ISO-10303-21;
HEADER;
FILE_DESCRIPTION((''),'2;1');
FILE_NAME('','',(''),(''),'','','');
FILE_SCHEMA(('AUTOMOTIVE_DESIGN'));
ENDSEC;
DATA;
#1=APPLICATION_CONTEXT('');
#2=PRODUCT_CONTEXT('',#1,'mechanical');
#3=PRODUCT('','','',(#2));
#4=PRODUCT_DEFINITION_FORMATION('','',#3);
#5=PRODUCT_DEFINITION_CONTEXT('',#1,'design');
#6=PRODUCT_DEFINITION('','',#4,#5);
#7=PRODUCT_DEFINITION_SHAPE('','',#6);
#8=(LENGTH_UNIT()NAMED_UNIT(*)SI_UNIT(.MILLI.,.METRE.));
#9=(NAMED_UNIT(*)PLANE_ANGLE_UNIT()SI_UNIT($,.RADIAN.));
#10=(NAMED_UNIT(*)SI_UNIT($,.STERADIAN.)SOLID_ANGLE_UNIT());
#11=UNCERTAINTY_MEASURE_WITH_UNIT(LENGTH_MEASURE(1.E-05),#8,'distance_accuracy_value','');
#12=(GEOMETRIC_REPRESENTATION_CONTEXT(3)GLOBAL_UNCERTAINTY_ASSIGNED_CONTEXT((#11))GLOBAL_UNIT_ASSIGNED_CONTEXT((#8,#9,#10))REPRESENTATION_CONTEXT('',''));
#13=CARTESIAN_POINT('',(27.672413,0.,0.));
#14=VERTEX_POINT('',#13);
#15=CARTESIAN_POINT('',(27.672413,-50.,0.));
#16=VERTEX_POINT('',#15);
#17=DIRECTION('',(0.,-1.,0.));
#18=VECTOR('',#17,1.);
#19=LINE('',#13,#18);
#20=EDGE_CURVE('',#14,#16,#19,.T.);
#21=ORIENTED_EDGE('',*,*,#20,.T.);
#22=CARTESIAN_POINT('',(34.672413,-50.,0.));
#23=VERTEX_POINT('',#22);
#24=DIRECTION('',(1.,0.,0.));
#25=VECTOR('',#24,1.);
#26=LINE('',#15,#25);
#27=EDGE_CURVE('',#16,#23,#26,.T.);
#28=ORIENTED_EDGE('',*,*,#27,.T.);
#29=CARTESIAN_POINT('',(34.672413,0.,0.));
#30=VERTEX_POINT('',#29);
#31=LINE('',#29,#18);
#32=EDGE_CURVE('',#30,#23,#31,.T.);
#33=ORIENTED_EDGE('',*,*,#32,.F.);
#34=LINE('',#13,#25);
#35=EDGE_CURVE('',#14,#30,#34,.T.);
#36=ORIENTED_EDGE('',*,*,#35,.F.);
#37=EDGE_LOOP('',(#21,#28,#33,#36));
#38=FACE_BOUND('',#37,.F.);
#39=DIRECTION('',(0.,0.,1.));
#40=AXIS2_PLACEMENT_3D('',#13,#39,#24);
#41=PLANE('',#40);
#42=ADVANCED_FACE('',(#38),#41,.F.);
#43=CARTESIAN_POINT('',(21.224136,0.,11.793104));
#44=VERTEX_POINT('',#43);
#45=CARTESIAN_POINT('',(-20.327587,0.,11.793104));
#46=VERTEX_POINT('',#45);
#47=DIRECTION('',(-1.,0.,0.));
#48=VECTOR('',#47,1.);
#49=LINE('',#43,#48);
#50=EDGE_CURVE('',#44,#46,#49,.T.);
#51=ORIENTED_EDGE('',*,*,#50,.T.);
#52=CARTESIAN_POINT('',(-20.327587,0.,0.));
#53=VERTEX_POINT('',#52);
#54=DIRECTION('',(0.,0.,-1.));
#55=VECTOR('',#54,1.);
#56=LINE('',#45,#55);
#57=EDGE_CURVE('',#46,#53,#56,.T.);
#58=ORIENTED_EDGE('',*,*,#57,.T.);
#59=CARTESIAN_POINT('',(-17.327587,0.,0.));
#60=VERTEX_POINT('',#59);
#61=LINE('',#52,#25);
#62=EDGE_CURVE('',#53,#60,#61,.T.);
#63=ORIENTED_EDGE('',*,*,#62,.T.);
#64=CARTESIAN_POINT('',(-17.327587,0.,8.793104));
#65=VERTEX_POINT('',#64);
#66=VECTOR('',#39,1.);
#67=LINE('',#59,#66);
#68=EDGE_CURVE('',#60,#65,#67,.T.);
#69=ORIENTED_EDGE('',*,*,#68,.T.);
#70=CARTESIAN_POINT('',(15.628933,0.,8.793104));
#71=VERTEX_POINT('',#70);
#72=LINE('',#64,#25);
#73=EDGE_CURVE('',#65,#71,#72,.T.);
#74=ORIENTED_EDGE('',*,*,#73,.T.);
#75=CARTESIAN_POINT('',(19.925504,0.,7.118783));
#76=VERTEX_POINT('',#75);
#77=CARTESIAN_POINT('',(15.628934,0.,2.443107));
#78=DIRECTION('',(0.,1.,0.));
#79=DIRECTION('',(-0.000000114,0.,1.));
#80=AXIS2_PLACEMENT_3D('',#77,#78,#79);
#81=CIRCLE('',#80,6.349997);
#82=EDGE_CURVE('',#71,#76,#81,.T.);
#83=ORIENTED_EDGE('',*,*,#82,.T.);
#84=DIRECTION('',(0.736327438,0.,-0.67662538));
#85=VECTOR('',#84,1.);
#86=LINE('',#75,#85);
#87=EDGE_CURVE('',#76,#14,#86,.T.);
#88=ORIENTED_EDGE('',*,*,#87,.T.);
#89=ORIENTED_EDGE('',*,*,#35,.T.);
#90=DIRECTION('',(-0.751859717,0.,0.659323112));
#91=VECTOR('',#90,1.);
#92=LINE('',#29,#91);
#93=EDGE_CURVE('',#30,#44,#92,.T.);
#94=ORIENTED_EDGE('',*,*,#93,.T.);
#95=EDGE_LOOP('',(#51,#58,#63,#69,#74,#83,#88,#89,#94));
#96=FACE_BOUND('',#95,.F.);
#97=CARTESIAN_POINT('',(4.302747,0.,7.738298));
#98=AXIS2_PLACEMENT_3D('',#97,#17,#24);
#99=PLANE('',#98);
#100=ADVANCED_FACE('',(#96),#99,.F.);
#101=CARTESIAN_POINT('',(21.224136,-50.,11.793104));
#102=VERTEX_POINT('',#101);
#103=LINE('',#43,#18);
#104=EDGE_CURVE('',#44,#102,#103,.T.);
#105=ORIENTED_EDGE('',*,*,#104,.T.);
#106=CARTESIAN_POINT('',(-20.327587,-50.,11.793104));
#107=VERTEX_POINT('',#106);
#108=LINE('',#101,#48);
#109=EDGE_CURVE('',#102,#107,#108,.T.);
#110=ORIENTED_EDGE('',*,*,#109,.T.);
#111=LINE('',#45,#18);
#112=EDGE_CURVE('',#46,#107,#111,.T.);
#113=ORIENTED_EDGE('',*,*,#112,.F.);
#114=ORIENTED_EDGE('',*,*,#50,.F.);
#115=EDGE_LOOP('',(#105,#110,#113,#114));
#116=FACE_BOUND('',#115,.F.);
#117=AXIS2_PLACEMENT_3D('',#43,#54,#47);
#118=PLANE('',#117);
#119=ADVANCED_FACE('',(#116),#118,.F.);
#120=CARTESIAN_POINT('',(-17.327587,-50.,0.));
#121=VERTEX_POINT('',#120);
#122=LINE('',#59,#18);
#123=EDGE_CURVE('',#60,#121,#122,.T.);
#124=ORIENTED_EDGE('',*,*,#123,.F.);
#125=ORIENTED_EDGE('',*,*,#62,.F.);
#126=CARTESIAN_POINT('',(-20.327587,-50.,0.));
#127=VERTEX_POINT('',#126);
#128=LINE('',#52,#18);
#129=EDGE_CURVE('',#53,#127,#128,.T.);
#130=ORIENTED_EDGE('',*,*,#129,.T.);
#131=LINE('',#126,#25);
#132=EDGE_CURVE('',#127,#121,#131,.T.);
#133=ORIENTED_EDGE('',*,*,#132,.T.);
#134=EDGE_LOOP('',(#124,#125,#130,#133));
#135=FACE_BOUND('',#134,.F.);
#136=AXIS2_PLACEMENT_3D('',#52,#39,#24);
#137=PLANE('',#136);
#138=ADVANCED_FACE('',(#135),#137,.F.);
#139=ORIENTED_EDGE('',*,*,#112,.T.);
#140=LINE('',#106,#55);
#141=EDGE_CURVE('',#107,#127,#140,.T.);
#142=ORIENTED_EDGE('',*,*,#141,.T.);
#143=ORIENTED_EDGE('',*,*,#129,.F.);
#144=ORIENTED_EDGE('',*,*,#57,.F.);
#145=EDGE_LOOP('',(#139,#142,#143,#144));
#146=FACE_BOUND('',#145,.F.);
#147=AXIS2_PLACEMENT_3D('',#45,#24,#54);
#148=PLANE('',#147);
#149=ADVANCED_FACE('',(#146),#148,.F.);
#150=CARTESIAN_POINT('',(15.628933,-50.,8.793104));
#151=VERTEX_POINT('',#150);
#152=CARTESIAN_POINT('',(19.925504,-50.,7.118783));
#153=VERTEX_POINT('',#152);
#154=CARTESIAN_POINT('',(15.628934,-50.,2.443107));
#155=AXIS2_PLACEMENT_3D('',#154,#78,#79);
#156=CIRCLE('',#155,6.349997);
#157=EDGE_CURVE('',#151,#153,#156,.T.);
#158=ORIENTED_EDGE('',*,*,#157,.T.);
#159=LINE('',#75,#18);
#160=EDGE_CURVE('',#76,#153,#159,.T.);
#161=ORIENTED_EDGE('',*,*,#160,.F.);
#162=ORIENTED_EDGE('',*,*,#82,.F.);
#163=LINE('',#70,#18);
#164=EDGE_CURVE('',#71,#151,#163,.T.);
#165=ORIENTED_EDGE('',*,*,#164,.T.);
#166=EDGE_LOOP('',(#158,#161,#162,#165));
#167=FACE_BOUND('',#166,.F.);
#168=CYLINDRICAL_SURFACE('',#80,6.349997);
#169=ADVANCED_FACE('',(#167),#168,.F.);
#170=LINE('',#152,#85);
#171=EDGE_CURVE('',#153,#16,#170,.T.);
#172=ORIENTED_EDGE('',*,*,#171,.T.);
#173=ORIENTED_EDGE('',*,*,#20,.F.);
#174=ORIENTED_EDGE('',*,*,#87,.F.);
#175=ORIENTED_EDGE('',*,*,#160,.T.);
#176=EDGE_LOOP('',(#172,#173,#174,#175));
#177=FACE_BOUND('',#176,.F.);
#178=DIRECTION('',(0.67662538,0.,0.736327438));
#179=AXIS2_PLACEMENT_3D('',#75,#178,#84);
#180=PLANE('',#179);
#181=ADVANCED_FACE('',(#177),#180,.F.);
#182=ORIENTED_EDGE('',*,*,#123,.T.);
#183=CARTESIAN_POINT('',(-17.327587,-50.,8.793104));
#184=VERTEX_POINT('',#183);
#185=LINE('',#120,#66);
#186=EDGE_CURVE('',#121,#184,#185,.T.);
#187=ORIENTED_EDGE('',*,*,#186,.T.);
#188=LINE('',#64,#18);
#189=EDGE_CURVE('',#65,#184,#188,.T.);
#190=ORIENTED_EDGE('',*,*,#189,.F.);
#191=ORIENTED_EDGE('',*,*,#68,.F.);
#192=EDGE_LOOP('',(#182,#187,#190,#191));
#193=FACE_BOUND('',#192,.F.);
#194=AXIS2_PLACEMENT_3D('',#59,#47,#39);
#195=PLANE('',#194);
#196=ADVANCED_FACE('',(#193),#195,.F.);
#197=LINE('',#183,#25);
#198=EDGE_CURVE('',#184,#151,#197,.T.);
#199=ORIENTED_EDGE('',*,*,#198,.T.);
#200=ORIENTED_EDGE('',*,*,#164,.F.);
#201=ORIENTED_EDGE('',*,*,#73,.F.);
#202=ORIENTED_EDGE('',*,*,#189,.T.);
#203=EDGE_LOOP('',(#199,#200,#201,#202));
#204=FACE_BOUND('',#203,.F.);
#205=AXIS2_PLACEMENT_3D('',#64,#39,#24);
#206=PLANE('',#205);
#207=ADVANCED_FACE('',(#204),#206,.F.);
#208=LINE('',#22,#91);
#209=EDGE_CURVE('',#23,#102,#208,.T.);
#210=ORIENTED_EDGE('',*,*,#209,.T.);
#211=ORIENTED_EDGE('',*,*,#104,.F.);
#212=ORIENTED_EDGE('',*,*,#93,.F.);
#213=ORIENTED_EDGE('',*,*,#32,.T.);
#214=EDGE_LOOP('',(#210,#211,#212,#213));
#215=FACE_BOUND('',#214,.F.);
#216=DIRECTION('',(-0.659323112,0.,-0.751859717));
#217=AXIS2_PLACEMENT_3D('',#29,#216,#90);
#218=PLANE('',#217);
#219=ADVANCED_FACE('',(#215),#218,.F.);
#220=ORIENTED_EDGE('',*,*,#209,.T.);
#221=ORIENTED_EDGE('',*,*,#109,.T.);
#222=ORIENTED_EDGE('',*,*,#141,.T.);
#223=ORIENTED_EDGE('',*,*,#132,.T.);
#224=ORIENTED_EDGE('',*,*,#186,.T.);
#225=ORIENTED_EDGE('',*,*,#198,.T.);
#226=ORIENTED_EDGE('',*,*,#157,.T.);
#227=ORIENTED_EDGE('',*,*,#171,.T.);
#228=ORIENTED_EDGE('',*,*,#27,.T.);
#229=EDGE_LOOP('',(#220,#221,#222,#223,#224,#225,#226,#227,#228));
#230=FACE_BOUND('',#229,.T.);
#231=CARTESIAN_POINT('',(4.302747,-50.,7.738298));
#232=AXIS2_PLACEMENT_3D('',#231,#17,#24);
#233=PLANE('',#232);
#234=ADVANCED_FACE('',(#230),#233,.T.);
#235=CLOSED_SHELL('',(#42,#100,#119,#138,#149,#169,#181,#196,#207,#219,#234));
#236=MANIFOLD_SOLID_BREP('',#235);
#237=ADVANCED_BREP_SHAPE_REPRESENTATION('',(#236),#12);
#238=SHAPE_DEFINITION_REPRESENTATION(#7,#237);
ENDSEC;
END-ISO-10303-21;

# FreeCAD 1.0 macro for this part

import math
import FreeCAD as App
import Part
import Sketcher

V = App.Vector
Q = App.Units.Quantity

doc = App.newDocument("Part")
body = doc.addObject("PartDesign::Body", "Body")

# Sketch on XZ plane
sketch1 = doc.addObject("Sketcher::SketchObject", "Sketch")
body.addObject(sketch1)
sketch1.AttachmentSupport = (doc.XZ_Plane, [""])
sketch1.MapMode = "FlatFace"
sketch1.addGeometry(Part.LineSegment(V(-20.3, 11.8, 0), V(-20.3, 0, 0)), False)
sketch1.addGeometry(Part.LineSegment(V(-20.3, 0, 0), V(-17.3, 0, 0)), False)
sketch1.addGeometry(Part.LineSegment(V(-17.3, 0, 0), V(-17.3, 8.8, 0)), False)
sketch1.addGeometry(Part.LineSegment(V(-17.3, 8.8, 0), V(15.6, 8.8, 0)), False)
sketch1.addGeometry(Part.ArcOfCircle(Part.Circle(V(15.6, 2.4, 0), V(0, 0, 1), 6.3), math.radians(47), math.radians(90)), False)
sketch1.addGeometry(Part.LineSegment(V(19.9, 7.1, 0), V(27.7, 0, 0)), False)
sketch1.addGeometry(Part.LineSegment(V(27.7, 0, 0), V(34.7, 0, 0)), False)
sketch1.addGeometry(Part.LineSegment(V(34.7, 0, 0), V(21.2, 11.8, 0)), False)
sketch1.addGeometry(Part.LineSegment(V(21.2, 11.8, 0), V(-20.3, 11.8, 0)), False)
sketch1.addConstraint(Sketcher.Constraint("Coincident", 0, 2, 1, 1))
sketch1.addConstraint(Sketcher.Constraint("Coincident", 1, 2, 2, 1))
sketch1.addConstraint(Sketcher.Constraint("Coincident", 2, 2, 3, 1))
sketch1.addConstraint(Sketcher.Constraint("Tangent", 3, 2, 4, 2))
sketch1.addConstraint(Sketcher.Constraint("Tangent", 4, 1, 5, 1))
sketch1.addConstraint(Sketcher.Constraint("Coincident", 5, 2, 6, 1))
sketch1.addConstraint(Sketcher.Constraint("Coincident", 6, 2, 7, 1))
sketch1.addConstraint(Sketcher.Constraint("Coincident", 7, 2, 8, 1))
sketch1.addConstraint(Sketcher.Constraint("Coincident", 8, 2, 0, 1))
sketch1.addConstraint(Sketcher.Constraint("Vertical", 0))
sketch1.addConstraint(Sketcher.Constraint("Horizontal", 1))
sketch1.addConstraint(Sketcher.Constraint("Vertical", 2))
sketch1.addConstraint(Sketcher.Constraint("Horizontal", 3))
sketch1.addConstraint(Sketcher.Constraint("Horizontal", 6))
sketch1.addConstraint(Sketcher.Constraint("Horizontal", 8))
sketch1.addConstraint(Sketcher.Constraint("PointOnObject", 0, 2, -1))
sketch1.addConstraint(Sketcher.Constraint("PointOnObject", 5, 2, -1))
sketch1.addConstraint(Sketcher.Constraint("DistanceX", 1, 1, 1, 2, Q("3 mm")))
sketch1.addConstraint(Sketcher.Constraint("DistanceX", 6, 1, 6, 2, Q("7 mm")))
sketch1.addConstraint(Sketcher.Constraint("DistanceX", 1, 2, 5, 2, Q("45 mm")))
sketch1.addConstraint(Sketcher.Constraint("DistanceY", 3, 2, 7, 2, Q("3 mm")))
sketch1.addConstraint(Sketcher.Constraint("Radius", 4, Q("6.349997 mm")))
sketch1.addConstraint(Sketcher.Constraint("DistanceX", 3, 1, 3, 2, Q("32.95652 mm")))
sketch1.addConstraint(Sketcher.Constraint("Distance", 5, Q("10.521011 mm")))
sketch1.addConstraint(Sketcher.Constraint("DistanceX", 8, 2, 8, 1, Q("41.551723 mm")))
sketch1.addConstraint(Sketcher.Constraint("DistanceX", -1, 1, 4, 3, Q("15.628934 mm")))
pad1 = doc.addObject("PartDesign::Pad", "Pad")
body.addObject(pad1)
pad1.Profile = sketch1
pad1.Length = 50

doc.recompute()
